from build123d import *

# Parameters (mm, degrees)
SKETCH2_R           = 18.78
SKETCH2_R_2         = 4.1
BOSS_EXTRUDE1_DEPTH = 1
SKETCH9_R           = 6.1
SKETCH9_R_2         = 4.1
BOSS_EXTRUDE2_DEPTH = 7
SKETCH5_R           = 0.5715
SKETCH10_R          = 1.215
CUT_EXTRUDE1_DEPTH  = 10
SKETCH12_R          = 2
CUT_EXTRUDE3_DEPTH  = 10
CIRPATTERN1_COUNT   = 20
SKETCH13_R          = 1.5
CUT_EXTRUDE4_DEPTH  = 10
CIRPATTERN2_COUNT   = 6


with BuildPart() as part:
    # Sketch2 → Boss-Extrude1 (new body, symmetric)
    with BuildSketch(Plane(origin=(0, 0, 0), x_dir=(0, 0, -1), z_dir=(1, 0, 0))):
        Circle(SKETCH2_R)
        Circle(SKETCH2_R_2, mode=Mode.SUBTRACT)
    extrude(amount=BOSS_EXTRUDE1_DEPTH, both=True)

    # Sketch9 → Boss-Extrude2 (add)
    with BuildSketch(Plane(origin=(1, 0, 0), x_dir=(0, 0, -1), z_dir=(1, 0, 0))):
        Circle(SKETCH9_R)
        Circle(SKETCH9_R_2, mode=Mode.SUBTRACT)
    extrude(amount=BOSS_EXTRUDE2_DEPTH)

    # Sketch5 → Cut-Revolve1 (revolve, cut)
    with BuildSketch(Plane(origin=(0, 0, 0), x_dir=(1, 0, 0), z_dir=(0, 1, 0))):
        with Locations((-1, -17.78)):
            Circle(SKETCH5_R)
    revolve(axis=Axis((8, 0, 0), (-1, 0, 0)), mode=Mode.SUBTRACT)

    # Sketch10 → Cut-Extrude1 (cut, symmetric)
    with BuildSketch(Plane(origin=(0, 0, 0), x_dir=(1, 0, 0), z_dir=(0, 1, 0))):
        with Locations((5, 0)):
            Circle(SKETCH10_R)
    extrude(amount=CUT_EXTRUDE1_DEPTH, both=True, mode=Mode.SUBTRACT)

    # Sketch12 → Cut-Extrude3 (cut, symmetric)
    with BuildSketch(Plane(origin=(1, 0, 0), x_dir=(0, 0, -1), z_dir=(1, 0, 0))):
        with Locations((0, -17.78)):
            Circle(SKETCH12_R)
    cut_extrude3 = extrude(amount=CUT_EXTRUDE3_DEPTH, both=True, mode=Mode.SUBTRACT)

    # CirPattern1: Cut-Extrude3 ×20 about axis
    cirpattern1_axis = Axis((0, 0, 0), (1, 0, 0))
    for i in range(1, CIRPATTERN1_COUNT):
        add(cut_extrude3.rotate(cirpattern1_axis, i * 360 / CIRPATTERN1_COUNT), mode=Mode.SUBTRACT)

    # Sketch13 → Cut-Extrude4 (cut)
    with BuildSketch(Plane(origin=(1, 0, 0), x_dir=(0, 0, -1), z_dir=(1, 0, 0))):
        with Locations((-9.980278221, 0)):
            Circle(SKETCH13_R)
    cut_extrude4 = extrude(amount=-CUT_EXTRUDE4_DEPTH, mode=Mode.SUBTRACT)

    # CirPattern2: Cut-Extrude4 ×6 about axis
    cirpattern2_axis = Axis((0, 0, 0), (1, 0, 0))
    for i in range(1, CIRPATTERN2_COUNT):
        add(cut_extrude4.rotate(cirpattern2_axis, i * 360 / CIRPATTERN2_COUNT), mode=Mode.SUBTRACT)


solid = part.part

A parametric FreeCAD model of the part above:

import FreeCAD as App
import Part
import Sketcher
Q = App.Units.Quantity

doc = App.newDocument("Part")
body = doc.addObject("PartDesign::Body", "Body")

# Sketch on YZ plane
sketch1 = body.newObject("Sketcher::SketchObject", "Sketch")
sketch1.AttachmentSupport = (doc.getObject("YZ_Plane"), [""])
sketch1.MapMode = "FlatFace"
sketch1.addGeometry([
    Part.Circle(App.Vector(0, 0, 0), App.Vector(0, 0, 1), 18.8),
    Part.Circle(App.Vector(0, 0, 0), App.Vector(0, 0, 1), 4.1),
], False)
sketch1.addConstraint([
    Sketcher.Constraint("Coincident", 0, 3, -1, 1),
    Sketcher.Constraint("Coincident", 1, 3, -1, 1),
    Sketcher.Constraint("Diameter", 1, Q("8.2 mm")),
    Sketcher.Constraint("Diameter", 0, Q("37.56 mm")),
])
pad1 = body.newObject("PartDesign::Pad", "Pad")
pad1.Profile = sketch1
pad1.Length = 2
pad1.Midplane = True

# Sketch on YZ plane
sketch2 = body.newObject("Sketcher::SketchObject", "Sketch001")
sketch2.AttachmentSupport = (doc.getObject("YZ_Plane"), [""])
sketch2.MapMode = "FlatFace"
sketch2.AttachmentOffset = App.Placement(App.Vector(0, 0, 1), App.Rotation())
sketch2.addGeometry([
    Part.Circle(App.Vector(0, 0, 0), App.Vector(0, 0, 1), 6.1),
    Part.Circle(App.Vector(0, 0, 0), App.Vector(0, 0, 1), 4.1),
], False)
sketch2.addConstraint([
    Sketcher.Constraint("Coincident", 0, 3, -1, 1),
    Sketcher.Constraint("Coincident", 1, 3, -1, 1),
    Sketcher.Constraint("Diameter", 0, Q("12.2 mm")),
    Sketcher.Constraint("Diameter", 1, Q("8.2 mm")),
])
pad2 = body.newObject("PartDesign::Pad", "Pad001")
pad2.Profile = sketch2
pad2.Length = 7

# Sketch on XZ plane
sketch3 = body.newObject("Sketcher::SketchObject", "Sketch002")
sketch3.AttachmentSupport = (doc.getObject("XZ_Plane"), [""])
sketch3.MapMode = "FlatFace"
sketch3.addGeometry(Part.Circle(App.Vector(-1, 17.8, 0), App.Vector(0, 0, 1), 0.6), False)
sketch3.addConstraint([
    Sketcher.Constraint("Diameter", 0, Q("1.143 mm")),
    Sketcher.Constraint("DistanceX", 0, 3, -1, 1, Q("1 mm")),
    Sketcher.Constraint("DistanceY", -1, 1, 0, 3, Q("17.78 mm")),
])
groove = body.newObject("PartDesign::Groove", "Groove")
groove.Profile = sketch3
groove.ReferenceAxis = (sketch3, ["H_Axis"])
groove.Angle = 360

# Sketch on XZ plane
sketch4 = body.newObject("Sketcher::SketchObject", "Sketch003")
sketch4.AttachmentSupport = (doc.getObject("XZ_Plane"), [""])
sketch4.MapMode = "FlatFace"
sketch4.addGeometry(Part.Circle(App.Vector(5, 0, 0), App.Vector(0, 0, 1), 1.2), False)
sketch4.addConstraint([
    Sketcher.Constraint("PointOnObject", 0, 3, -1),
    Sketcher.Constraint("Diameter", 0, Q("2.43 mm")),
    Sketcher.Constraint("DistanceX", -1, 1, 0, 3, Q("5 mm")),
])
pocket1 = body.newObject("PartDesign::Pocket", "Pocket")
pocket1.Profile = sketch4
pocket1.Length = 20
pocket1.Midplane = True

# Sketch on YZ plane
sketch5 = body.newObject("Sketcher::SketchObject", "Sketch004")
sketch5.AttachmentSupport = (doc.getObject("YZ_Plane"), [""])
sketch5.MapMode = "FlatFace"
sketch5.AttachmentOffset = App.Placement(App.Vector(0, 0, 1), App.Rotation())
sketch5.addGeometry(Part.Circle(App.Vector(-17.8, 0, 0), App.Vector(0, 0, 1), 2), False)
sketch5.addConstraint([
    Sketcher.Constraint("PointOnObject", 0, 3, -1),
    Sketcher.Constraint("Diameter", 0, Q("4 mm")),
    Sketcher.Constraint("DistanceX", 0, 3, -1, 1, Q("17.78 mm")),
])
pocket2 = body.newObject("PartDesign::Pocket", "Pocket001")
pocket2.Profile = sketch5
pocket2.Length = 20
pocket2.Midplane = True
doc.recompute()

polarpattern = body.newObject("PartDesign::PolarPattern", "PolarPattern")
polarpattern.Originals = [pocket2]
polarpattern.Axis = (doc.getObject("X_Axis"), [""])
polarpattern.Angle = 360
polarpattern.Occurrences = 20
body.Tip = polarpattern

# Sketch on YZ plane
sketch6 = body.newObject("Sketcher::SketchObject", "Sketch005")
sketch6.AttachmentSupport = (doc.getObject("YZ_Plane"), [""])
sketch6.MapMode = "FlatFace"
sketch6.AttachmentOffset = App.Placement(App.Vector(0, 0, 1), App.Rotation())
sketch6.addGeometry(Part.Circle(App.Vector(0, 10, 0), App.Vector(0, 0, 1), 1.5), False)
sketch6.addConstraint([
    Sketcher.Constraint("PointOnObject", 0, 3, -2),
    Sketcher.Constraint("Diameter", 0, Q("3 mm")),
    Sketcher.Constraint("DistanceY", -1, 1, 0, 3, Q("9.980278 mm")),
])
pocket3 = body.newObject("PartDesign::Pocket", "Pocket002")
pocket3.Profile = sketch6
pocket3.Length = 10
doc.recompute()

polarpattern2 = body.newObject("PartDesign::PolarPattern", "PolarPattern001")
polarpattern2.Originals = [pocket3]
polarpattern2.Axis = (doc.getObject("X_Axis"), [""])
polarpattern2.Angle = 360
polarpattern2.Occurrences = 6
body.Tip = polarpattern2

doc.recompute()
